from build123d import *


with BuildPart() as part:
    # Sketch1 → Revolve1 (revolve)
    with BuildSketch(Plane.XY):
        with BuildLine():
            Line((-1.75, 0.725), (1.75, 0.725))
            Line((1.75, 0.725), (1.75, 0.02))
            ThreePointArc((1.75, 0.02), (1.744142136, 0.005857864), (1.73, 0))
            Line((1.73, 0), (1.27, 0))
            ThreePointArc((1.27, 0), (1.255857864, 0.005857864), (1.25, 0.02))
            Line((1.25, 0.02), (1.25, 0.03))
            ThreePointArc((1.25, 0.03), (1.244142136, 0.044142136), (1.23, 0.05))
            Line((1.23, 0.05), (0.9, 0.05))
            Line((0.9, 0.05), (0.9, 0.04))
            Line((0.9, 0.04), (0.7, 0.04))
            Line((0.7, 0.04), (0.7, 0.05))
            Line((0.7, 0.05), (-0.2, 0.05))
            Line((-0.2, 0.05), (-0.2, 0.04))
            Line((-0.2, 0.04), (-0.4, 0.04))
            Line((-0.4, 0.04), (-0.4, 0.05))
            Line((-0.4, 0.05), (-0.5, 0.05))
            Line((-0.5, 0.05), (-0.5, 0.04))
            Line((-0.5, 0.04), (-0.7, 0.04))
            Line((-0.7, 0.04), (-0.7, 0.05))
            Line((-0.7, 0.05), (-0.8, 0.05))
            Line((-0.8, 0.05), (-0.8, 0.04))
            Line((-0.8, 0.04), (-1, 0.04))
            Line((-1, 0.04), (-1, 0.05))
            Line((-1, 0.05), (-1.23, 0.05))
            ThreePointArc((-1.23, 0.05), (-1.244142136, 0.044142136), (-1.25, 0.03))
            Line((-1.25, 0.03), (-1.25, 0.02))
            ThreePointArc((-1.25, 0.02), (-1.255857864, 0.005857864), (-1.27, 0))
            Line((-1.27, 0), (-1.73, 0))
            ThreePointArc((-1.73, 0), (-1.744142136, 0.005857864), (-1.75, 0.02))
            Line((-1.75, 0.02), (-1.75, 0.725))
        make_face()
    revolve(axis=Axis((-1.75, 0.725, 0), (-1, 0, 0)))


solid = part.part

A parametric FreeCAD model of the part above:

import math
import FreeCAD as App
import Part
import Sketcher
from FreeCAD import Vector

doc = App.newDocument("Part")
body = doc.addObject("PartDesign::Body", "Body")

# Sketch on XY plane
sketch1 = doc.addObject("Sketcher::SketchObject", "Sketch")
body.addObject(sketch1)
sketch1.AttachmentSupport = (doc.XY_Plane, [""])
sketch1.MapMode = "FlatFace"
sketch1.addGeometry(Part.LineSegment(Vector(1.75, 0.725, 0), Vector(-1.75, 0.725, 0)), False)
sketch1.addGeometry(Part.LineSegment(Vector(-1.75, 0.725, 0), Vector(-1.75, 0.02, 0)), False)
sketch1.addGeometry(Part.ArcOfCircle(Part.Circle(Vector(-1.73, 0.02, 0), Vector(0, 0, 1), 0.02), math.radians(180), math.radians(270)), False)
sketch1.addGeometry(Part.LineSegment(Vector(-1.73, 0, 0), Vector(-1.27, 0, 0)), False)
sketch1.addGeometry(Part.ArcOfCircle(Part.Circle(Vector(-1.27, 0.02, 0), Vector(0, 0, 1), 0.02), math.radians(-90), math.radians(0)), False)
sketch1.addGeometry(Part.LineSegment(Vector(-1.25, 0.02, 0), Vector(-1.25, 0.03, 0)), False)
sketch1.addGeometry(Part.ArcOfCircle(Part.Circle(Vector(-1.23, 0.03, 0), Vector(0, 0, 1), 0.02), math.radians(90), math.radians(180)), False)
sketch1.addGeometry(Part.LineSegment(Vector(-1.23, 0.05, 0), Vector(-1, 0.05, 0)), False)
sketch1.addGeometry(Part.LineSegment(Vector(-1, 0.05, 0), Vector(-1, 0.04, 0)), False)
sketch1.addGeometry(Part.LineSegment(Vector(-1, 0.04, 0), Vector(-0.8, 0.04, 0)), False)
sketch1.addGeometry(Part.LineSegment(Vector(-0.8, 0.04, 0), Vector(-0.8, 0.05, 0)), False)
sketch1.addGeometry(Part.LineSegment(Vector(-0.8, 0.05, 0), Vector(-0.7, 0.05, 0)), False)
sketch1.addGeometry(Part.LineSegment(Vector(-0.7, 0.05, 0), Vector(-0.7, 0.04, 0)), False)
sketch1.addGeometry(Part.LineSegment(Vector(-0.7, 0.04, 0), Vector(-0.5, 0.04, 0)), False)
sketch1.addGeometry(Part.LineSegment(Vector(-0.5, 0.04, 0), Vector(-0.5, 0.05, 0)), False)
sketch1.addGeometry(Part.LineSegment(Vector(-0.5, 0.05, 0), Vector(-0.4, 0.05, 0)), False)
sketch1.addGeometry(Part.LineSegment(Vector(-0.4, 0.05, 0), Vector(-0.4, 0.04, 0)), False)
sketch1.addGeometry(Part.LineSegment(Vector(-0.4, 0.04, 0), Vector(-0.2, 0.04, 0)), False)
sketch1.addGeometry(Part.LineSegment(Vector(-0.2, 0.04, 0), Vector(-0.2, 0.05, 0)), False)
sketch1.addGeometry(Part.LineSegment(Vector(-0.2, 0.05, 0), Vector(0.7, 0.05, 0)), False)
sketch1.addGeometry(Part.LineSegment(Vector(0.7, 0.05, 0), Vector(0.7, 0.04, 0)), False)
sketch1.addGeometry(Part.LineSegment(Vector(0.7, 0.04, 0), Vector(0.9, 0.04, 0)), False)
sketch1.addGeometry(Part.LineSegment(Vector(0.9, 0.04, 0), Vector(0.9, 0.05, 0)), False)
sketch1.addGeometry(Part.LineSegment(Vector(0.9, 0.05, 0), Vector(1.23, 0.05, 0)), False)
sketch1.addGeometry(Part.ArcOfCircle(Part.Circle(Vector(1.23, 0.03, 0), Vector(0, 0, 1), 0.02), math.radians(0), math.radians(90)), False)
sketch1.addGeometry(Part.LineSegment(Vector(1.25, 0.03, 0), Vector(1.25, 0.02, 0)), False)
sketch1.addGeometry(Part.ArcOfCircle(Part.Circle(Vector(1.27, 0.02, 0), Vector(0, 0, 1), 0.02), math.radians(180), math.radians(270)), False)
sketch1.addGeometry(Part.LineSegment(Vector(1.27, 0, 0), Vector(1.73, 0, 0)), False)
sketch1.addGeometry(Part.ArcOfCircle(Part.Circle(Vector(1.73, 0.02, 0), Vector(0, 0, 1), 0.02), math.radians(-90), math.radians(0)), False)
sketch1.addGeometry(Part.LineSegment(Vector(1.75, 0.02, 0), Vector(1.75, 0.725, 0)), False)
sketch1.addGeometry(Part.LineSegment(Vector(1.75, 0.725, 0), Vector(-1.75, 0.725, 0)), True)  # axis
sketch1.addConstraint(Sketcher.Constraint("Coincident", 0, 2, 1, 1))
sketch1.addConstraint(Sketcher.Constraint("Tangent", 1, 2, 2, 1))
sketch1.addConstraint(Sketcher.Constraint("Tangent", 2, 2, 3, 1))
sketch1.addConstraint(Sketcher.Constraint("Tangent", 3, 2, 4, 1))
sketch1.addConstraint(Sketcher.Constraint("Tangent", 4, 2, 5, 1))
sketch1.addConstraint(Sketcher.Constraint("Tangent", 5, 2, 6, 2))
sketch1.addConstraint(Sketcher.Constraint("Tangent", 6, 1, 7, 1))
sketch1.addConstraint(Sketcher.Constraint("Coincident", 7, 2, 8, 1))
sketch1.addConstraint(Sketcher.Constraint("Coincident", 8, 2, 9, 1))
sketch1.addConstraint(Sketcher.Constraint("Coincident", 9, 2, 10, 1))
sketch1.addConstraint(Sketcher.Constraint("Coincident", 10, 2, 11, 1))
sketch1.addConstraint(Sketcher.Constraint("Coincident", 11, 2, 12, 1))
sketch1.addConstraint(Sketcher.Constraint("Coincident", 12, 2, 13, 1))
sketch1.addConstraint(Sketcher.Constraint("Coincident", 13, 2, 14, 1))
sketch1.addConstraint(Sketcher.Constraint("Coincident", 14, 2, 15, 1))
sketch1.addConstraint(Sketcher.Constraint("Coincident", 15, 2, 16, 1))
sketch1.addConstraint(Sketcher.Constraint("Coincident", 16, 2, 17, 1))
sketch1.addConstraint(Sketcher.Constraint("Coincident", 17, 2, 18, 1))
sketch1.addConstraint(Sketcher.Constraint("Coincident", 18, 2, 19, 1))
sketch1.addConstraint(Sketcher.Constraint("Coincident", 19, 2, 20, 1))
sketch1.addConstraint(Sketcher.Constraint("Coincident", 20, 2, 21, 1))
sketch1.addConstraint(Sketcher.Constraint("Coincident", 21, 2, 22, 1))
sketch1.addConstraint(Sketcher.Constraint("Coincident", 22, 2, 23, 1))
sketch1.addConstraint(Sketcher.Constraint("Tangent", 23, 2, 24, 2))
sketch1.addConstraint(Sketcher.Constraint("Tangent", 24, 1, 25, 1))
sketch1.addConstraint(Sketcher.Constraint("Tangent", 25, 2, 26, 1))
sketch1.addConstraint(Sketcher.Constraint("Tangent", 26, 2, 27, 1))
sketch1.addConstraint(Sketcher.Constraint("Tangent", 27, 2, 28, 1))
sketch1.addConstraint(Sketcher.Constraint("Tangent", 28, 2, 29, 1))
sketch1.addConstraint(Sketcher.Constraint("Coincident", 29, 2, 0, 1))
sketch1.addConstraint(Sketcher.Constraint("Horizontal", 0))
sketch1.addConstraint(Sketcher.Constraint("Vertical", 1))
sketch1.addConstraint(Sketcher.Constraint("Horizontal", 3))
sketch1.addConstraint(Sketcher.Constraint("Vertical", 5))
sketch1.addConstraint(Sketcher.Constraint("Horizontal", 7))
sketch1.addConstraint(Sketcher.Constraint("Vertical", 8))
sketch1.addConstraint(Sketcher.Constraint("Horizontal", 9))
sketch1.addConstraint(Sketcher.Constraint("Vertical", 10))
sketch1.addConstraint(Sketcher.Constraint("Horizontal", 11))
sketch1.addConstraint(Sketcher.Constraint("Vertical", 12))
sketch1.addConstraint(Sketcher.Constraint("Horizontal", 13))
sketch1.addConstraint(Sketcher.Constraint("Vertical", 14))
sketch1.addConstraint(Sketcher.Constraint("Horizontal", 15))
sketch1.addConstraint(Sketcher.Constraint("Vertical", 16))
sketch1.addConstraint(Sketcher.Constraint("Horizontal", 17))
sketch1.addConstraint(Sketcher.Constraint("Vertical", 18))
sketch1.addConstraint(Sketcher.Constraint("Horizontal", 19))
sketch1.addConstraint(Sketcher.Constraint("Vertical", 20))
sketch1.addConstraint(Sketcher.Constraint("Horizontal", 21))
sketch1.addConstraint(Sketcher.Constraint("Vertical", 22))
sketch1.addConstraint(Sketcher.Constraint("Horizontal", 23))
sketch1.addConstraint(Sketcher.Constraint("Vertical", 25))
sketch1.addConstraint(Sketcher.Constraint("Horizontal", 27))
sketch1.addConstraint(Sketcher.Constraint("Vertical", 29))
sketch1.addConstraint(Sketcher.Constraint("Horizontal", 30))
sketch1.addConstraint(Sketcher.Constraint("Coincident", 30, 1, 29, 2))
sketch1.addConstraint(Sketcher.Constraint("Equal", 2, 4))
sketch1.addConstraint(Sketcher.Constraint("Equal", 4, 6))
sketch1.addConstraint(Sketcher.Constraint("Equal", 6, 24))
sketch1.addConstraint(Sketcher.Constraint("Equal", 24, 26))
sketch1.addConstraint(Sketcher.Constraint("Equal", 26, 28))
sketch1.addConstraint(Sketcher.Constraint("Symmetric", 3, 2, 26, 2, -1, 1))
sketch1.addConstraint(Sketcher.Constraint("Symmetric", 2, 3, 28, 3, -2))
sketch1.addConstraint(Sketcher.Constraint("Symmetric", 11, 2, 19, 2, -2))
sketch1.addConstraint(Sketcher.Constraint("Horizontal", 6, 3, 24, 3))
sketch1.addConstraint(Sketcher.Constraint("Horizontal", 7, 2, 10, 2))
sketch1.addConstraint(Sketcher.Constraint("Horizontal", 9, 2, 12, 2))
sketch1.addConstraint(Sketcher.Constraint("Horizontal", 11, 2, 14, 2))
sketch1.addConstraint(Sketcher.Constraint("Horizontal", 13, 2, 16, 2))
sketch1.addConstraint(Sketcher.Constraint("Horizontal", 17, 2, 20, 2))
sketch1.addConstraint(Sketcher.Constraint("Vertical", 1, 2, 30, 2))
sketch1.addConstraint(Sketcher.Constraint("Equal", 9, 13))
sketch1.addConstraint(Sketcher.Constraint("Equal", 11, 15))
sketch1.addConstraint(Sketcher.Constraint("Equal", 13, 17))
sketch1.addConstraint(Sketcher.Constraint("Equal", 17, 21))
sketch1.addConstraint(Sketcher.Constraint("Equal", 5, 8))
sketch1.addConstraint(Sketcher.Constraint("Radius", 2, 0.02))
sketch1.addConstraint(Sketcher.Constraint("DistanceX", 0, 2, 0, 1, 3.5))
sketch1.addConstraint(Sketcher.Constraint("DistanceX", 9, 1, 9, 2, 0.2))
sketch1.addConstraint(Sketcher.Constraint("DistanceX", 11, 1, 11, 2, 0.1))
sketch1.addConstraint(Sketcher.Constraint("DistanceX", 19, 1, 19, 2, 0.9))
sketch1.addConstraint(Sketcher.Constraint("DistanceX", 2, 3, 26, 3, 3.0))
sketch1.addConstraint(Sketcher.Constraint("DistanceY", 5, 1, 5, 2, 0.01))
sketch1.addConstraint(Sketcher.Constraint("DistanceY", 1, 2, 1, 1, 0.705))
revolution = doc.addObject("PartDesign::Revolution", "Revolution")
body.addObject(revolution)
revolution.Profile = sketch1
revolution.ReferenceAxis = (sketch1, ["Axis0"])
revolution.Angle = 360

doc.recompute()
